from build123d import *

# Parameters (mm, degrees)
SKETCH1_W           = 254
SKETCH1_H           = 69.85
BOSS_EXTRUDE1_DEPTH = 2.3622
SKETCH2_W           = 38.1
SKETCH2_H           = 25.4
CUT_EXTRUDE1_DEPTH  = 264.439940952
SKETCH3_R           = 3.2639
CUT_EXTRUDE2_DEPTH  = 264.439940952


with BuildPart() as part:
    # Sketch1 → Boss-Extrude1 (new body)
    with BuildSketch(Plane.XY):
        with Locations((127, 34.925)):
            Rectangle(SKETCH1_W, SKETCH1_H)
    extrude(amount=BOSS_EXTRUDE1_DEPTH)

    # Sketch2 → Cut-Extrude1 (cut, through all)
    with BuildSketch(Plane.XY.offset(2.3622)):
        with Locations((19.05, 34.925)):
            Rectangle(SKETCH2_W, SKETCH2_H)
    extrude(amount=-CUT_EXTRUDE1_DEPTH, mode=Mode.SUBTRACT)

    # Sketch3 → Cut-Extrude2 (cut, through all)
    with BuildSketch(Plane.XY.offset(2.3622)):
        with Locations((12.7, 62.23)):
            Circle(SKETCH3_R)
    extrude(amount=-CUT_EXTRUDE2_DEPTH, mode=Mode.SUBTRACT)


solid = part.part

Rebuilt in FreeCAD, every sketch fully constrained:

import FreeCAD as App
import Part
import Sketcher

V = App.Vector
Q = App.Units.Quantity

doc = App.newDocument("Part")
params = doc.addObject("Spreadsheet::Sheet", "Params")
for row, (alias, value) in enumerate([
    ("sketch1_width", "10 in"),
    ("sketch1_height", "2.75 in"),
    ("pad1_length", "0.093 in"),
    ("sketch2_height", "1 in"),
    ("sketch2_width", "1.5 in"),
    ("sketch3_diameter", "0.257 in"),
], start=1):
    params.set(f"A{row}", alias)
    params.set(f"B{row}", "=" + value)
    params.setAlias(f"B{row}", alias)

body = doc.addObject("PartDesign::Body", "Body")

# Sketch on XY plane
sketch1 = body.newObject("Sketcher::SketchObject", "Sketch")
sketch1.AttachmentSupport = (doc.getObject("XY_Plane"), [""])
sketch1.MapMode = "FlatFace"
sketch1.addGeometry([
    Part.LineSegment(V(0, 70, 0), V(0, 0, 0)),
    Part.LineSegment(V(0, 0, 0), V(254, 0, 0)),
    Part.LineSegment(V(254, 0, 0), V(254, 70, 0)),
    Part.LineSegment(V(254, 70, 0), V(0, 70, 0)),
], False)
sketch1.addConstraint([
    Sketcher.Constraint("Coincident", 0, 2, 1, 1),
    Sketcher.Constraint("Coincident", 1, 2, 2, 1),
    Sketcher.Constraint("Coincident", 2, 2, 3, 1),
    Sketcher.Constraint("Coincident", 3, 2, 0, 1),
    Sketcher.Constraint("Vertical", 0),
    Sketcher.Constraint("Horizontal", 1),
    Sketcher.Constraint("Vertical", 2),
    Sketcher.Constraint("Horizontal", 3),
    Sketcher.Constraint("Coincident", 0, 2, -1, 1),
    Sketcher.Constraint("DistanceX", 1, 1, 1, 2, Q("10 in")),
    Sketcher.Constraint("DistanceY", 0, 2, 0, 1, Q("2.75 in")),
])
sketch1.setExpression("Constraints[9]", "Params.sketch1_width")
sketch1.setExpression("Constraints[10]", "Params.sketch1_height")
pad1 = body.newObject("PartDesign::Pad", "Pad")
pad1.Profile = sketch1
pad1.setExpression("Length", "Params.pad1_length")

# Sketch on XY plane
sketch2 = body.newObject("Sketcher::SketchObject", "Sketch001")
sketch2.AttachmentSupport = (doc.getObject("XY_Plane"), [""])
sketch2.MapMode = "FlatFace"
sketch2.AttachmentOffset = App.Placement(V(0, 0, 0.093 * 25.4), App.Rotation())
sketch2.addGeometry([
    Part.LineSegment(V(0, 48, 0), V(0, 22, 0)),
    Part.LineSegment(V(0, 22, 0), V(38, 22, 0)),
    Part.LineSegment(V(38, 22, 0), V(38, 48, 0)),
    Part.LineSegment(V(38, 48, 0), V(0, 48, 0)),
], False)
sketch2.addConstraint([
    Sketcher.Constraint("Coincident", 0, 2, 1, 1),
    Sketcher.Constraint("Coincident", 1, 2, 2, 1),
    Sketcher.Constraint("Coincident", 2, 2, 3, 1),
    Sketcher.Constraint("Coincident", 3, 2, 0, 1),
    Sketcher.Constraint("Vertical", 0),
    Sketcher.Constraint("Horizontal", 1),
    Sketcher.Constraint("Vertical", 2),
    Sketcher.Constraint("Horizontal", 3),
    Sketcher.Constraint("PointOnObject", 0, 2, -2),
    Sketcher.Constraint("DistanceY", 0, 2, 0, 1, Q("1 in")),
    Sketcher.Constraint("DistanceX", 1, 1, 1, 2, Q("1.5 in")),
    Sketcher.Constraint("DistanceY", -1, 1, 0, 2, Q("0.875 in")),
])
sketch2.setExpression("Constraints[9]", "Params.sketch2_height")
sketch2.setExpression("Constraints[10]", "Params.sketch2_width")
pocket1 = body.newObject("PartDesign::Pocket", "Pocket")
pocket1.Profile = sketch2
pocket1.Type = "ThroughAll"

# Sketch on XY plane
sketch3 = body.newObject("Sketcher::SketchObject", "Sketch002")
sketch3.AttachmentSupport = (doc.getObject("XY_Plane"), [""])
sketch3.MapMode = "FlatFace"
sketch3.AttachmentOffset = App.Placement(V(0, 0, 0.093 * 25.4), App.Rotation())
sketch3.addGeometry(Part.Circle(V(12.7, 62.2, 0), V(0, 0, 1), 3.3), False)
sketch3.addConstraint([
    Sketcher.Constraint("Diameter", 0, Q("0.257 in")),
    Sketcher.Constraint("DistanceX", -1, 1, 0, 3, Q("0.5 in")),
    Sketcher.Constraint("DistanceY", -1, 1, 0, 3, Q("2.45 in")),
])
sketch3.setExpression("Constraints[0]", "Params.sketch3_diameter")
pocket2 = body.newObject("PartDesign::Pocket", "Pocket001")
pocket2.Profile = sketch3
pocket2.Type = "ThroughAll"

doc.recompute()
